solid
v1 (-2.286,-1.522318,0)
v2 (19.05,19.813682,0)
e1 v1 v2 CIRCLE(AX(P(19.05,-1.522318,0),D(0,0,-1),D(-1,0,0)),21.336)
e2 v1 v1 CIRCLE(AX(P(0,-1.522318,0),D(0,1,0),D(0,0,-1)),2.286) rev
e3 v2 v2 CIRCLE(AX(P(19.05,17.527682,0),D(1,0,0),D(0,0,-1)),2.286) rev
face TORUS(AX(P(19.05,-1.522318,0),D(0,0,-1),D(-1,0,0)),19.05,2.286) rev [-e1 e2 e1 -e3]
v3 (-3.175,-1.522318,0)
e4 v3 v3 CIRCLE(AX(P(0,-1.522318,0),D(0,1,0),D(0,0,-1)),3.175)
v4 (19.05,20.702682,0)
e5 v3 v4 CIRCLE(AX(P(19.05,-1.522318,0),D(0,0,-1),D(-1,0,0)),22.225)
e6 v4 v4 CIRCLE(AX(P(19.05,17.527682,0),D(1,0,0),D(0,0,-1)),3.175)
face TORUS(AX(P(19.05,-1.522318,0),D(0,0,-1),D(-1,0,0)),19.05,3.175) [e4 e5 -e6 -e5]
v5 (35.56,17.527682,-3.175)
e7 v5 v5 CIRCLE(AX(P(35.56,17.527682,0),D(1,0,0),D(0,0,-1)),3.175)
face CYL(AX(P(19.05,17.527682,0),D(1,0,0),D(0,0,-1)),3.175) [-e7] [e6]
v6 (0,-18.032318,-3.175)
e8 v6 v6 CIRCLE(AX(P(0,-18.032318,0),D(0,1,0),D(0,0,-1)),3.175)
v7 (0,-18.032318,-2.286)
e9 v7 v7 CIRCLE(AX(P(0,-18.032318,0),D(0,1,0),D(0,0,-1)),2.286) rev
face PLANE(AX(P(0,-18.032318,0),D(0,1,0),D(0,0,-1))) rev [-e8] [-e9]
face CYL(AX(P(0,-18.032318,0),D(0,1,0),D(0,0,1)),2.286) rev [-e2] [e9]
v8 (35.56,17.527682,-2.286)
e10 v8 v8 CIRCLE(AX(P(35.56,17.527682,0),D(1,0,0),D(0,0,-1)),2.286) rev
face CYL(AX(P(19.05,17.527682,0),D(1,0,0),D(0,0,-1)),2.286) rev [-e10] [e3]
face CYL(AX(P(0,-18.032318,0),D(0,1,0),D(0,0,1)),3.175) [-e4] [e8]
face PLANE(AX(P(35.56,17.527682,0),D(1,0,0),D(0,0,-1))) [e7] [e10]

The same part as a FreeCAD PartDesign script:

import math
import FreeCAD as App
import Part
import Sketcher
from FreeCAD import Vector
Q = App.Units.Quantity

doc = App.newDocument("Part")
body = doc.addObject("PartDesign::Body", "Body")

sketch1 = body.newObject("Sketcher::SketchObject", "Sketch")
sketch1.AttachmentSupport = (doc.getObject("YZ_Plane"), [""])
sketch1.MapMode = "FlatFace"
sketch1.AttachmentOffset = App.Placement(Vector(0, 0, 1.4 * 25.4), App.Rotation())
sketch1.addGeometry([
    Part.Circle(Vector(17.5, 0, 0), Vector(0, 0, 1), 3.2),
    Part.Circle(Vector(17.5, 0, 0), Vector(0, 0, 1), 2.3),
], False)
sketch1.addConstraint([
    Sketcher.Constraint("Coincident", 1, 3, 0, 3),
    Sketcher.Constraint("PointOnObject", 0, 3, -1),
    Sketcher.Constraint("Diameter", 0, Q("0.25 in")),
    Sketcher.Constraint("Diameter", 1, Q("0.18 in")),
    Sketcher.Constraint("DistanceX", -1, 1, 0, 3, Q("17.527682 mm")),
])

sketch2 = body.newObject("Sketcher::SketchObject", "Sketch001")
sketch2.AttachmentSupport = (doc.getObject("XY_Plane"), [""])
sketch2.MapMode = "FlatFace"
sketch2.addGeometry([
    Part.LineSegment(Vector(0, -18, 0), Vector(0, -2, 0)),
    Part.ArcOfCircle(Part.Circle(Vector(19, -2, 0), Vector(0, 0, 1), 19), math.radians(90), math.radians(180)),
    Part.LineSegment(Vector(19, 18, 0), Vector(36, 18, 0)),
], False)
sketch2.addConstraint([
    Sketcher.Constraint("Tangent", 0, 2, 1, 2),
    Sketcher.Constraint("Tangent", 1, 1, 2, 1),
    Sketcher.Constraint("Vertical", 0),
    Sketcher.Constraint("Horizontal", 2),
    Sketcher.Constraint("PointOnObject", 0, 1, -2),
    Sketcher.Constraint("Equal", 2, 0),
    Sketcher.Constraint("Radius", 1, Q("0.75 in")),
    Sketcher.Constraint("DistanceX", 2, 1, 2, 2, Q("0.65 in")),
    Sketcher.Constraint("DistanceY", 1, 3, -1, 1, Q("1.522318 mm")),
])
doc.recompute()

additivepipe = body.newObject("PartDesign::AdditivePipe", "AdditivePipe")
additivepipe.Profile = sketch1
additivepipe.Spine = (sketch2, ["Edge1", "Edge2", "Edge3"])

doc.recompute()
